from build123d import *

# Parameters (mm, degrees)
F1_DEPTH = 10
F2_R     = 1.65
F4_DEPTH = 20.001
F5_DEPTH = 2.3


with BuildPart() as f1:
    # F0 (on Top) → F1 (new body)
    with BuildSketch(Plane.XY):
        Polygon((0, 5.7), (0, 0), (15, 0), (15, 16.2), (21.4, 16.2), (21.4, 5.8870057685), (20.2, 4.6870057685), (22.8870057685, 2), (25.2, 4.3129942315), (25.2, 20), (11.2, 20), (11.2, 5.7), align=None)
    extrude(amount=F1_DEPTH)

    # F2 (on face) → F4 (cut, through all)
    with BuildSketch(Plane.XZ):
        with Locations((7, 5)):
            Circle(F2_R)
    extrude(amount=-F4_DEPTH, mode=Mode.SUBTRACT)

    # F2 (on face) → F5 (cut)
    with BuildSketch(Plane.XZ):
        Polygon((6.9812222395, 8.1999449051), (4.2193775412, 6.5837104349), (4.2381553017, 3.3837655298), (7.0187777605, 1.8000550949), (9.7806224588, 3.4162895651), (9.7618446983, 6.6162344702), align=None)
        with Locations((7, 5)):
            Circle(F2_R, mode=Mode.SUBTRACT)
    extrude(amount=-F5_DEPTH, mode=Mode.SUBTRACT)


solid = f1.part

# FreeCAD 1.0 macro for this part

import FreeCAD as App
import Part
import Sketcher
Q = App.Units.Quantity


def add_polygon(sketch, points):
    """Adds a closed chain of lines whose ends are joined by coincident constraints."""
    first, n = sketch.GeometryCount, len(points)
    for a, b in zip(points, points[1:] + points[:1]):
        sketch.addGeometry(Part.LineSegment(App.Vector(*a, 0), App.Vector(*b, 0)), False)
    for i in range(n):
        sketch.addConstraint(Sketcher.Constraint("Coincident", first + i, 2, first + (i + 1) % n, 1))

doc = App.newDocument("Part")
body = doc.addObject("PartDesign::Body", "Body")

# Sketch on XY plane
sketch1 = body.newObject("Sketcher::SketchObject", "Sketch")
sketch1.AttachmentSupport = (doc.getObject("XY_Plane"), [""])
sketch1.MapMode = "FlatFace"
add_polygon(sketch1, [(0, 5.7), (0, 0), (15, 0), (15, 16.2), (21.4, 16.2), (21.4, 5.887006), (20.2, 4.687006), (22.887006, 2), (25.2, 4.312994), (25.2, 20), (11.2, 20), (11.2, 5.7)])  # lines 0-11
sketch1.addConstraint([
    Sketcher.Constraint("Vertical", 0),
    Sketcher.Constraint("Horizontal", 1),
    Sketcher.Constraint("Vertical", 2),
    Sketcher.Constraint("Horizontal", 3),
    Sketcher.Constraint("Vertical", 4),
    Sketcher.Constraint("Vertical", 8),
    Sketcher.Constraint("Horizontal", 9),
    Sketcher.Constraint("Vertical", 10),
    Sketcher.Constraint("Horizontal", 11),
    Sketcher.Constraint("Coincident", 0, 2, -1, 1),
    Sketcher.Constraint("Perpendicular", 5, 6),
    Sketcher.Constraint("Perpendicular", 6, 7),
    Sketcher.Constraint("DistanceX", 1, 1, 1, 2, Q("15 mm")),
    Sketcher.Constraint("DistanceX", 9, 2, 9, 1, Q("14 mm")),
    Sketcher.Constraint("Angle", 5, Q("-135 deg")),
    Sketcher.Constraint("DistanceX", 3, 1, 3, 2, Q("6.4 mm")),
    Sketcher.Constraint("DistanceX", 11, 2, 11, 1, Q("11.2 mm")),
    Sketcher.Constraint("DistanceY", 0, 2, 0, 1, Q("5.7 mm")),
    Sketcher.Constraint("DistanceY", 2, 1, 2, 2, Q("16.2 mm")),
    Sketcher.Constraint("DistanceY", 10, 2, 10, 1, Q("14.3 mm")),
    Sketcher.Constraint("DistanceY", -1, 1, 6, 2, Q("2 mm")),
    Sketcher.Constraint("DistanceX", 5, 2, 7, 2, Q("5 mm")),
    Sketcher.Constraint("Distance", 6, Q("3.8 mm")),
])
pad1 = body.newObject("PartDesign::Pad", "Pad")
pad1.Profile = sketch1
pad1.Length = 10

# Sketch on XZ plane
sketch2 = body.newObject("Sketcher::SketchObject", "Sketch001")
sketch2.AttachmentSupport = (doc.getObject("XZ_Plane"), [""])
sketch2.MapMode = "FlatFace"
sketch2.addGeometry(Part.Circle(App.Vector(7, 5, 0), App.Vector(0, 0, 1), 1.65), False)
sketch2.addConstraint([
    Sketcher.Constraint("Diameter", 0, Q("3.3 mm")),
    Sketcher.Constraint("DistanceX", -1, 1, 0, 3, Q("7 mm")),
    Sketcher.Constraint("DistanceY", -1, 1, 0, 3, Q("5 mm")),
])
pocket1 = body.newObject("PartDesign::Pocket", "Pocket")
pocket1.Profile = sketch2
pocket1.Type = "ThroughAll"

# Sketch on XZ plane
sketch3 = body.newObject("Sketcher::SketchObject", "Sketch002")
sketch3.AttachmentSupport = (doc.getObject("XZ_Plane"), [""])
sketch3.MapMode = "FlatFace"
add_polygon(sketch3, [(6.981222, 8.199945), (4.219378, 6.58371), (4.238155, 3.383766), (7.018778, 1.800055), (9.780622, 3.41629), (9.761845, 6.616234)])  # lines 0-5
sketch3.addGeometry(Part.Circle(App.Vector(7, 5, 0), App.Vector(0, 0, 1), 1.65), False)  # 6
sketch3.addConstraint([
    Sketcher.Constraint("Parallel", 0, 3),
    Sketcher.Constraint("Parallel", 1, 4),
    Sketcher.Constraint("Parallel", 2, 5),
    Sketcher.Constraint("Equal", 0, 1),
    Sketcher.Constraint("Equal", 1, 2),
    Sketcher.Constraint("Equal", 2, 3),
    Sketcher.Constraint("Diameter", 6, Q("3.3 mm")),
    Sketcher.Constraint("DistanceX", -1, 1, 6, 3, Q("7 mm")),
    Sketcher.Constraint("DistanceY", -1, 1, 6, 3, Q("5 mm")),
    Sketcher.Constraint("Distance", 0, Q("3.2 mm")),
    Sketcher.Constraint("DistanceX", 0, 2, 2, 2, Q("2.7994 mm")),
    Sketcher.Constraint("DistanceY", -1, 1, 0, 2, Q("6.58371 mm")),
    Sketcher.Constraint("DistanceY", -1, 1, 3, 2, Q("3.41629 mm")),
    Sketcher.Constraint("DistanceY", 2, 2, 1, 2, Q("1.58371 mm")),
    Sketcher.Constraint("DistanceX", -1, 1, 0, 2, Q("4.219378 mm")),
])
pocket2 = body.newObject("PartDesign::Pocket", "Pocket001")
pocket2.Profile = sketch3
pocket2.Length = 2.3

doc.recompute()
